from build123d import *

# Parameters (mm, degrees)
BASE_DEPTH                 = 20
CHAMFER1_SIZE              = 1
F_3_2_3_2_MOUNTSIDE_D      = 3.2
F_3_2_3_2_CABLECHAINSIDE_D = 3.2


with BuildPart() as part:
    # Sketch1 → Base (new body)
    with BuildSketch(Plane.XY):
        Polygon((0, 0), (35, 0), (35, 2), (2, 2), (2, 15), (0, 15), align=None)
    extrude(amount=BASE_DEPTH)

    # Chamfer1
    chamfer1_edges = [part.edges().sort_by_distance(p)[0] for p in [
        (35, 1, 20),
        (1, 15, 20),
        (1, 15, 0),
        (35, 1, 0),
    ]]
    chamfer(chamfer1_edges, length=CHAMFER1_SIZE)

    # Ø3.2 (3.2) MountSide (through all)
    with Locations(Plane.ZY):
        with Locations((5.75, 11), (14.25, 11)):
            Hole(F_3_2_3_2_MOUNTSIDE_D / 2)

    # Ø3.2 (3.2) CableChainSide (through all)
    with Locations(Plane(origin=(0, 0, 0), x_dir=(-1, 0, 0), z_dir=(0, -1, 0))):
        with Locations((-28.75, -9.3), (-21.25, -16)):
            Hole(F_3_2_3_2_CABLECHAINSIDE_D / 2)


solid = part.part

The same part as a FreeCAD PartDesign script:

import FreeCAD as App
import Part
import Sketcher


def edges_at(feature, points):
    """Names of the edges that pass closest to the given points."""
    edges = feature.Shape.Edges
    near = lambda p: min(range(len(edges)), key=lambda i: edges[i].distToShape(Part.Vertex(*p))[0])
    return sorted({f"Edge{near(p) + 1}" for p in points})


def add_polygon(sketch, points):
    """Adds a closed chain of lines whose ends are joined by coincident constraints."""
    first, n = sketch.GeometryCount, len(points)
    for a, b in zip(points, points[1:] + points[:1]):
        sketch.addGeometry(Part.LineSegment(App.Vector(*a, 0), App.Vector(*b, 0)), False)
    for i in range(n):
        sketch.addConstraint(Sketcher.Constraint("Coincident", first + i, 2, first + (i + 1) % n, 1))

doc = App.newDocument("Part")
body = doc.addObject("PartDesign::Body", "Body")

sketch1 = body.newObject("Sketcher::SketchObject", "Sketch")
sketch1.AttachmentSupport = (doc.getObject("XY_Plane"), [""])
sketch1.MapMode = "FlatFace"
add_polygon(sketch1, [(0, 0), (35, 0), (35, 2), (2, 2), (2, 15), (0, 15)])
sketch1.addConstraint([
    Sketcher.Constraint("Horizontal", 0),
    Sketcher.Constraint("Vertical", 1),
    Sketcher.Constraint("Horizontal", 2),
    Sketcher.Constraint("Vertical", 3),
    Sketcher.Constraint("Horizontal", 4),
    Sketcher.Constraint("Vertical", 5),
    Sketcher.Constraint("Coincident", 5, 2, -1, 1),
    Sketcher.Constraint("Equal", 4, 1),
    Sketcher.Constraint("DistanceX", 0, 1, 0, 2, 35.0),
    Sketcher.Constraint("DistanceX", 2, 2, 2, 1, 33.0),
    Sketcher.Constraint("DistanceY", 3, 1, 3, 2, 13.0),
])
pad1 = body.newObject("PartDesign::Pad", "Pad")
pad1.Profile = sketch1
pad1.Length = 20
doc.recompute()

chamfer = body.newObject("PartDesign::Chamfer", "Chamfer")
chamfer.Base = (pad1, edges_at(pad1, [
    (35, 1, 20),
    (1, 15, 20),
    (1, 15, 0),
    (35, 1, 0),
]))
chamfer.Size = 1

sketch2 = body.newObject("Sketcher::SketchObject", "Sketch001")
sketch2.AttachmentSupport = (doc.getObject("YZ_Plane"), [""])
sketch2.MapMode = "FlatFace"
sketch2.addGeometry([
    Part.Circle(App.Vector(11, 5.8, 0), App.Vector(0, 0, 1), 1.6),
    Part.Circle(App.Vector(11, 14.2, 0), App.Vector(0, 0, 1), 1.6),
], False)
sketch2.addConstraint([
    Sketcher.Constraint("Equal", 0, 1),
    Sketcher.Constraint("Vertical", 0, 3, 1, 3),
    Sketcher.Constraint("Diameter", 0, 3.2),
    Sketcher.Constraint("DistanceX", -1, 1, 0, 3, 11.0),
    Sketcher.Constraint("DistanceY", 0, 3, 1, 3, 8.5),
    Sketcher.Constraint("DistanceY", -1, 1, 0, 3, 5.75),
])
doc.recompute()
hole = body.newObject("PartDesign::Hole", "Hole")
hole.Profile = sketch2
hole.ThreadType = "None"
hole.Diameter = 3.2
hole.DepthType = "ThroughAll"
hole.Reversed = True

sketch3 = body.newObject("Sketcher::SketchObject", "Sketch002")
sketch3.AttachmentSupport = (doc.getObject("XZ_Plane"), [""])
sketch3.MapMode = "FlatFace"
sketch3.addGeometry([
    Part.Circle(App.Vector(28.8, 9.3, 0), App.Vector(0, 0, 1), 1.6),
    Part.Circle(App.Vector(21.2, 16, 0), App.Vector(0, 0, 1), 1.6),
], False)
sketch3.addConstraint([
    Sketcher.Constraint("Equal", 0, 1),
    Sketcher.Constraint("Diameter", 0, 3.2),
    Sketcher.Constraint("DistanceY", -1, 1, 1, 3, 16.0),
    Sketcher.Constraint("DistanceY", -1, 1, 0, 3, 9.3),
    Sketcher.Constraint("DistanceX", 1, 3, 0, 3, 7.5),
    Sketcher.Constraint("DistanceX", -1, 1, 0, 3, 28.75),
])
doc.recompute()
hole2 = body.newObject("PartDesign::Hole", "Hole001")
hole2.Profile = sketch3
hole2.ThreadType = "None"
hole2.Diameter = 3.2
hole2.DepthType = "ThroughAll"

doc.recompute()
